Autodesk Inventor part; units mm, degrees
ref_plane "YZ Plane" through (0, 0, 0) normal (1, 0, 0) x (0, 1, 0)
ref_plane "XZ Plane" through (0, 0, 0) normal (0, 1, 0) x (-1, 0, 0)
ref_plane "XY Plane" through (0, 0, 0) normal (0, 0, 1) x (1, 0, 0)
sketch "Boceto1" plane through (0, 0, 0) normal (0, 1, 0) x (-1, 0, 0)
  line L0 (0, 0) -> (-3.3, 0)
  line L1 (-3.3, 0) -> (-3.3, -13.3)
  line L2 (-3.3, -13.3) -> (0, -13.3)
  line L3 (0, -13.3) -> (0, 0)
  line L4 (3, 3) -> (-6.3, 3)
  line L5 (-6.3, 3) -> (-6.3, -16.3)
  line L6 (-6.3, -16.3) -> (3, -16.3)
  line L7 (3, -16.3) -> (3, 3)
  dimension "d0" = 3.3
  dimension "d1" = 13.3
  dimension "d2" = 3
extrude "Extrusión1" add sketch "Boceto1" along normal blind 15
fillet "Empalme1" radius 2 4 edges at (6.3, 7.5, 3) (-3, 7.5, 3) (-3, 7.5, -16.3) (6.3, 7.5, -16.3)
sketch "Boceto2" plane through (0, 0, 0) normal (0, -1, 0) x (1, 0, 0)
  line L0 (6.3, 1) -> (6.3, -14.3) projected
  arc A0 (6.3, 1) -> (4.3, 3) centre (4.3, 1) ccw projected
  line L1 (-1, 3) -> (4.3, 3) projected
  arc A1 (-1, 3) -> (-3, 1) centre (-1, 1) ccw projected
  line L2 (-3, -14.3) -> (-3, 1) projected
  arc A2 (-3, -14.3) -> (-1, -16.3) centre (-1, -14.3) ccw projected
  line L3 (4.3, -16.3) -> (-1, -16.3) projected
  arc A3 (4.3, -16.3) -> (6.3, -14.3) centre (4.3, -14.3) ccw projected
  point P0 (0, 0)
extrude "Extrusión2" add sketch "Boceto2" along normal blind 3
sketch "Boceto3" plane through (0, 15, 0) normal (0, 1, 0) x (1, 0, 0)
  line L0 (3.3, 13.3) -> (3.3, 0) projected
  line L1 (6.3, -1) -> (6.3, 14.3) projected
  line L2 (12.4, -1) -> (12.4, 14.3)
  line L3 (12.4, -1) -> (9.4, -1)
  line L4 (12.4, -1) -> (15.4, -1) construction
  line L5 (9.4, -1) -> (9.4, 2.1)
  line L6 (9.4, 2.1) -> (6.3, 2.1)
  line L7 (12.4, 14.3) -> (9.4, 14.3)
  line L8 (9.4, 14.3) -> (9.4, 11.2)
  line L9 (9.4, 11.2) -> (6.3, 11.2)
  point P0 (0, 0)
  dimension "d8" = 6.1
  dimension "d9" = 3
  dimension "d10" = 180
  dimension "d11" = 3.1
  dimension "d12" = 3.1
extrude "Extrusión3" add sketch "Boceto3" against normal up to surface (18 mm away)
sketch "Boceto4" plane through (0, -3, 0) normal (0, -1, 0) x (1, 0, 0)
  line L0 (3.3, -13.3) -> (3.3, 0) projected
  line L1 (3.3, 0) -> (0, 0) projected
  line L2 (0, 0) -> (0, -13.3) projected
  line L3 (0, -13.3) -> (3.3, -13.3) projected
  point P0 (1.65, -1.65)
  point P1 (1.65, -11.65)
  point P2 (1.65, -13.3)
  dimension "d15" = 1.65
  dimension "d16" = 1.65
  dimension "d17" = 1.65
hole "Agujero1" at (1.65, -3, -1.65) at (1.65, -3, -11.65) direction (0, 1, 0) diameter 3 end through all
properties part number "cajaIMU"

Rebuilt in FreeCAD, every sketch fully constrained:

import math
import FreeCAD as App
import Part
import Sketcher


def edges_at(feature, points):
    """Names of the edges that pass closest to the given points."""
    edges = feature.Shape.Edges
    near = lambda p: min(range(len(edges)), key=lambda i: edges[i].distToShape(Part.Vertex(*p))[0])
    return sorted({f"Edge{near(p) + 1}" for p in points})

doc = App.newDocument("Part")
body = doc.addObject("PartDesign::Body", "Body")

# Sketch on XZ plane
sketch1 = body.newObject("Sketcher::SketchObject", "Sketch")
sketch1.AttachmentSupport = (doc.getObject("XZ_Plane"), [""])
sketch1.MapMode = "FlatFace"
sketch1.addGeometry([
    Part.LineSegment(App.Vector(-3, -16.3, 0), App.Vector(-3, 3, 0)),  # 0
    Part.LineSegment(App.Vector(-3, 3, 0), App.Vector(6.3, 3, 0)),  # 1
    Part.LineSegment(App.Vector(6.3, 3, 0), App.Vector(6.3, -16.3, 0)),  # 2
    Part.LineSegment(App.Vector(6.3, -16.3, 0), App.Vector(-3, -16.3, 0)),  # 3
    Part.LineSegment(App.Vector(3.3, 0, 0), App.Vector(0, 0, 0)),  # 4
    Part.LineSegment(App.Vector(0, 0, 0), App.Vector(0, -13.3, 0)),  # 5
    Part.LineSegment(App.Vector(0, -13.3, 0), App.Vector(3.3, -13.3, 0)),  # 6
    Part.LineSegment(App.Vector(3.3, -13.3, 0), App.Vector(3.3, 0, 0)),  # 7
], False)
sketch1.addConstraint([
    Sketcher.Constraint("Coincident", 0, 2, 1, 1),
    Sketcher.Constraint("Coincident", 1, 2, 2, 1),
    Sketcher.Constraint("Coincident", 2, 2, 3, 1),
    Sketcher.Constraint("Coincident", 3, 2, 0, 1),
    Sketcher.Constraint("Coincident", 4, 2, 5, 1),
    Sketcher.Constraint("Coincident", 5, 2, 6, 1),
    Sketcher.Constraint("Coincident", 6, 2, 7, 1),
    Sketcher.Constraint("Coincident", 7, 2, 4, 1),
    Sketcher.Constraint("Vertical", 0),
    Sketcher.Constraint("Horizontal", 1),
    Sketcher.Constraint("Vertical", 2),
    Sketcher.Constraint("Horizontal", 3),
    Sketcher.Constraint("Horizontal", 4),
    Sketcher.Constraint("Vertical", 5),
    Sketcher.Constraint("Horizontal", 6),
    Sketcher.Constraint("Vertical", 7),
    Sketcher.Constraint("Coincident", 4, 2, -1, 1),
    Sketcher.Constraint("DistanceX", 4, 2, 4, 1, 3.3),
    Sketcher.Constraint("DistanceY", 5, 2, 5, 1, 13.3),
    Sketcher.Constraint("DistanceX", 0, 2, -1, 1, 3.0),
    Sketcher.Constraint("DistanceY", -1, 1, 0, 2, 3.0),
    Sketcher.Constraint("DistanceY", 3, 2, 5, 2, 3.0),
    Sketcher.Constraint("DistanceX", 6, 2, 2, 2, 3.0),
])
pad1 = body.newObject("PartDesign::Pad", "Pad")
pad1.Profile = sketch1
pad1.Length = 15
pad1.Reversed = True
doc.recompute()

fillet = body.newObject("PartDesign::Fillet", "Fillet")
fillet.Base = (pad1, edges_at(pad1, [
    (6.3, 7.5, 3),
    (-3, 7.5, 3),
    (-3, 7.5, -16.3),
    (6.3, 7.5, -16.3),
]))
fillet.Radius = 2

# Sketch on XZ plane
sketch2 = body.newObject("Sketcher::SketchObject", "Sketch001")
sketch2.AttachmentSupport = (doc.getObject("XZ_Plane"), [""])
sketch2.MapMode = "FlatFace"
sketch2.addGeometry([
    Part.LineSegment(App.Vector(6.3, -14.3, 0), App.Vector(6.3, 1, 0)),  # 0
    Part.ArcOfCircle(Part.Circle(App.Vector(4.3, 1, 0), App.Vector(0, 0, 1), 2), math.radians(0), math.radians(90)),  # 1
    Part.LineSegment(App.Vector(4.3, 3, 0), App.Vector(-1, 3, 0)),  # 2
    Part.ArcOfCircle(Part.Circle(App.Vector(-1, 1, 0), App.Vector(0, 0, 1), 2), math.radians(90), math.radians(180)),  # 3
    Part.LineSegment(App.Vector(-3, 1, 0), App.Vector(-3, -14.3, 0)),  # 4
    Part.ArcOfCircle(Part.Circle(App.Vector(-1, -14.3, 0), App.Vector(0, 0, 1), 2), math.radians(180), math.radians(270)),  # 5
    Part.LineSegment(App.Vector(-1, -16.3, 0), App.Vector(4.3, -16.3, 0)),  # 6
    Part.ArcOfCircle(Part.Circle(App.Vector(4.3, -14.3, 0), App.Vector(0, 0, 1), 2), math.radians(-90), math.radians(0)),  # 7
], False)
sketch2.addConstraint([
    Sketcher.Constraint("Tangent", 0, 2, 1, 1),
    Sketcher.Constraint("Tangent", 1, 2, 2, 1),
    Sketcher.Constraint("Tangent", 2, 2, 3, 1),
    Sketcher.Constraint("Tangent", 3, 2, 4, 1),
    Sketcher.Constraint("Tangent", 4, 2, 5, 1),
    Sketcher.Constraint("Tangent", 5, 2, 6, 1),
    Sketcher.Constraint("Tangent", 6, 2, 7, 1),
    Sketcher.Constraint("Tangent", 7, 2, 0, 1),
    Sketcher.Constraint("Vertical", 0),
    Sketcher.Constraint("Horizontal", 2),
    Sketcher.Constraint("Vertical", 4),
    Sketcher.Constraint("Horizontal", 6),
    Sketcher.Constraint("Equal", 1, 3),
    Sketcher.Constraint("Equal", 3, 5),
    Sketcher.Constraint("Equal", 5, 7),
    Sketcher.Constraint("Radius", 1, 2.0),
    Sketcher.Constraint("DistanceX", 2, 2, 2, 1, 5.3),
    Sketcher.Constraint("DistanceY", 0, 1, 0, 2, 15.3),
    Sketcher.Constraint("DistanceY", -1, 1, 1, 3, 1.0),
    Sketcher.Constraint("DistanceX", 3, 3, -1, 1, 1.0),
])
pad2 = body.newObject("PartDesign::Pad", "Pad001")
pad2.Profile = sketch2
pad2.Length = 3

# Sketch on XZ plane
sketch3 = body.newObject("Sketcher::SketchObject", "Sketch002")
sketch3.AttachmentSupport = (doc.getObject("XZ_Plane"), [""])
sketch3.MapMode = "FlatFace"
sketch3.AttachmentOffset = App.Placement(App.Vector(0, 0, -15), App.Rotation())
sketch3.addGeometry([
    Part.LineSegment(App.Vector(6.3, -11.2, 0), App.Vector(6.3, -2.1, 0)),  # 0
    Part.LineSegment(App.Vector(6.3, -2.1, 0), App.Vector(9.4, -2.1, 0)),  # 1
    Part.LineSegment(App.Vector(9.4, -2.1, 0), App.Vector(9.4, 1, 0)),  # 2
    Part.LineSegment(App.Vector(9.4, 1, 0), App.Vector(12.4, 1, 0)),  # 3
    Part.LineSegment(App.Vector(12.4, 1, 0), App.Vector(12.4, -14.3, 0)),  # 4
    Part.LineSegment(App.Vector(12.4, -14.3, 0), App.Vector(9.4, -14.3, 0)),  # 5
    Part.LineSegment(App.Vector(9.4, -14.3, 0), App.Vector(9.4, -11.2, 0)),  # 6
    Part.LineSegment(App.Vector(9.4, -11.2, 0), App.Vector(6.3, -11.2, 0)),  # 7
], False)
sketch3.addConstraint([
    Sketcher.Constraint("Coincident", 0, 2, 1, 1),
    Sketcher.Constraint("Coincident", 1, 2, 2, 1),
    Sketcher.Constraint("Coincident", 2, 2, 3, 1),
    Sketcher.Constraint("Coincident", 3, 2, 4, 1),
    Sketcher.Constraint("Coincident", 4, 2, 5, 1),
    Sketcher.Constraint("Coincident", 5, 2, 6, 1),
    Sketcher.Constraint("Coincident", 6, 2, 7, 1),
    Sketcher.Constraint("Coincident", 7, 2, 0, 1),
    Sketcher.Constraint("Vertical", 0),
    Sketcher.Constraint("Horizontal", 1),
    Sketcher.Constraint("Vertical", 2),
    Sketcher.Constraint("Horizontal", 3),
    Sketcher.Constraint("Vertical", 4),
    Sketcher.Constraint("Horizontal", 5),
    Sketcher.Constraint("Vertical", 6),
    Sketcher.Constraint("Horizontal", 7),
    Sketcher.Constraint("Vertical", 2, 2, 5, 2),
    Sketcher.Constraint("Equal", 7, 2),
    Sketcher.Constraint("Equal", 2, 6),
    Sketcher.Constraint("DistanceX", 3, 1, 3, 2, 3.0),
    Sketcher.Constraint("DistanceX", 1, 1, 1, 2, 3.1),
    Sketcher.Constraint("DistanceY", 0, 1, 0, 2, 9.1),
    Sketcher.Constraint("DistanceY", -1, 1, 2, 2, 1.0),
    Sketcher.Constraint("DistanceX", -1, 1, 0, 2, 6.3),
])
pad3 = body.newObject("PartDesign::Pad", "Pad002")
pad3.Profile = sketch3
pad3.Length = 18

# Sketch on XZ plane
sketch4 = body.newObject("Sketcher::SketchObject", "Sketch003")
sketch4.AttachmentSupport = (doc.getObject("XZ_Plane"), [""])
sketch4.MapMode = "FlatFace"
sketch4.AttachmentOffset = App.Placement(App.Vector(0, 0, 3), App.Rotation())
sketch4.addGeometry([
    Part.Circle(App.Vector(1.6, -1.6, 0), App.Vector(0, 0, 1), 1.5),
    Part.Circle(App.Vector(1.6, -11.7, 0), App.Vector(0, 0, 1), 1.5),
], False)
sketch4.addConstraint([
    Sketcher.Constraint("Equal", 0, 1),
    Sketcher.Constraint("Vertical", 0, 3, 1, 3),
    Sketcher.Constraint("Diameter", 0, 3.0),
    Sketcher.Constraint("DistanceY", 1, 3, 0, 3, 10.0),
    Sketcher.Constraint("DistanceX", -1, 1, 0, 3, 1.65),
    Sketcher.Constraint("DistanceY", 0, 3, -1, 1, 1.65),
])
doc.recompute()
hole = body.newObject("PartDesign::Hole", "Hole")
hole.Profile = sketch4
hole.ThreadType = "None"
hole.Diameter = 3
hole.DepthType = "ThroughAll"

doc.recompute()
